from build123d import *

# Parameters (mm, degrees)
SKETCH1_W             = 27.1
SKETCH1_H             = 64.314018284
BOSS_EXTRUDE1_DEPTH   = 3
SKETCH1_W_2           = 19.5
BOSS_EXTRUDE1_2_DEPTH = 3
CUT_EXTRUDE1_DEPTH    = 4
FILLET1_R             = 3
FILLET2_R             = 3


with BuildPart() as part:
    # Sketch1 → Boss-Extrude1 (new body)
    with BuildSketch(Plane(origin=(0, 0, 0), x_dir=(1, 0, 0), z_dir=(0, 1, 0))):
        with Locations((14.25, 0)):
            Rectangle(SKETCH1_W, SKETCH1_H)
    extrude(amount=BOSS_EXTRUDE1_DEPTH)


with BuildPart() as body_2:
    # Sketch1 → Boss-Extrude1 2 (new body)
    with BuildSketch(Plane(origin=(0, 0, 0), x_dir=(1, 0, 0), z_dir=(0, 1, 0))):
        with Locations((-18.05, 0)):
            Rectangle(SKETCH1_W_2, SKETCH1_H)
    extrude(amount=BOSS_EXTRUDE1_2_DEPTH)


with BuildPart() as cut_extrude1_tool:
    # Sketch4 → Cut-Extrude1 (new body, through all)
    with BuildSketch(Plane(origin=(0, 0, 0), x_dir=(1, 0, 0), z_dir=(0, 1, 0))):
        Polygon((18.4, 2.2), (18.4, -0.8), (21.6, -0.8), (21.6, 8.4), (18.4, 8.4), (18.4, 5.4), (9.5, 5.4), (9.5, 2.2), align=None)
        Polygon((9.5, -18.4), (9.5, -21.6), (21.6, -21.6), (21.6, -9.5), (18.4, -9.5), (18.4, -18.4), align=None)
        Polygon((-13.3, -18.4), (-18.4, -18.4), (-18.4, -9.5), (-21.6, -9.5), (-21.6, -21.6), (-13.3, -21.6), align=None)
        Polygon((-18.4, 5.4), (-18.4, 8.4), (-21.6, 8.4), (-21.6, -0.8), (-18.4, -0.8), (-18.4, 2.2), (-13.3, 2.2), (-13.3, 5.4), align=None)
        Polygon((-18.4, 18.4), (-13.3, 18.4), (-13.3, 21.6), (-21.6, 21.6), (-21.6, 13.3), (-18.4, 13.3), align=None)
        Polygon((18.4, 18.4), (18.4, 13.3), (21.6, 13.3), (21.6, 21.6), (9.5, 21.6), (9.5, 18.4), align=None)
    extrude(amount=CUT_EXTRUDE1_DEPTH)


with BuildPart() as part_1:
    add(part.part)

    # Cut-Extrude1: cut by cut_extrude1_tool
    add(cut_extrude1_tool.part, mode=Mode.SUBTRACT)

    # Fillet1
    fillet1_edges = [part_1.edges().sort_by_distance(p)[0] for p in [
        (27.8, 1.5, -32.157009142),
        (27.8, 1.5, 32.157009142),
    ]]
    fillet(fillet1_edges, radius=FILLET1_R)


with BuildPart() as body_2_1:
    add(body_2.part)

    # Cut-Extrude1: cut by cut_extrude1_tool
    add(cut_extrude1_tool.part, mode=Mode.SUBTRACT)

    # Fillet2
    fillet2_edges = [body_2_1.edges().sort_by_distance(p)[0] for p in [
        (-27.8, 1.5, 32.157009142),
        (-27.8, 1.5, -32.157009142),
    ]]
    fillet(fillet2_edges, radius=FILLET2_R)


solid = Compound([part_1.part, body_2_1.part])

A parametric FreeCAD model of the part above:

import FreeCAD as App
import Part
import Sketcher
Q = App.Units.Quantity


def edges_at(feature, points):
    """Names of the edges that pass closest to the given points."""
    edges = feature.Shape.Edges
    near = lambda p: min(range(len(edges)), key=lambda i: edges[i].distToShape(Part.Vertex(*p))[0])
    return sorted({f"Edge{near(p) + 1}" for p in points})

doc = App.newDocument("Part")
params = doc.addObject("Spreadsheet::Sheet", "Params")
for row, (alias, value) in enumerate([
    ("sketch1_width", "27.1 mm"),
    ("pad1_length", "3 mm"),
    ("sketch2_width", "19.5 mm"),
    ("pad2_length", "3 mm"),
    ("sketch3_height", "3 mm"),
    ("sketch3_width", "3.2 mm"),
    ("sketch3_width2", "8.9 mm"),
    ("sketch3_width3", "5.1 mm"),
    ("pad3_length", "4 mm"),
    ("fillet_radius", "3 mm"),
    ("fillet2_radius", "3 mm"),
], start=1):
    params.set(f"A{row}", alias)
    params.set(f"B{row}", "=" + value)
    params.setAlias(f"B{row}", alias)

body = doc.addObject("PartDesign::Body", "Body")

# Sketch on XZ plane
sketch1 = doc.addObject("Sketcher::SketchObject", "Sketch")
body.addObject(sketch1)
sketch1.AttachmentSupport = (doc.XZ_Plane, [""])
sketch1.MapMode = "FlatFace"
sketch1.addGeometry(Part.LineSegment(App.Vector(1, -32, 0), App.Vector(1, 32, 0)), False)
sketch1.addGeometry(Part.LineSegment(App.Vector(1, 32, 0), App.Vector(28, 32, 0)), False)
sketch1.addGeometry(Part.LineSegment(App.Vector(28, 32, 0), App.Vector(28, -32, 0)), False)
sketch1.addGeometry(Part.LineSegment(App.Vector(28, -32, 0), App.Vector(1, -32, 0)), False)
sketch1.addConstraint(Sketcher.Constraint("Coincident", 0, 2, 1, 1))
sketch1.addConstraint(Sketcher.Constraint("Coincident", 1, 2, 2, 1))
sketch1.addConstraint(Sketcher.Constraint("Coincident", 2, 2, 3, 1))
sketch1.addConstraint(Sketcher.Constraint("Coincident", 3, 2, 0, 1))
sketch1.addConstraint(Sketcher.Constraint("Vertical", 0))
sketch1.addConstraint(Sketcher.Constraint("Horizontal", 1))
sketch1.addConstraint(Sketcher.Constraint("Vertical", 2))
sketch1.addConstraint(Sketcher.Constraint("Horizontal", 3))
sketch1.addConstraint(Sketcher.Constraint("DistanceX", 1, 1, 1, 2, Q("27.1 mm")))
sketch1.addConstraint(Sketcher.Constraint("DistanceX", -1, 1, 0, 2, Q("0.7 mm")))
sketch1.addConstraint(Sketcher.Constraint("DistanceY", 0, 1, 0, 2, Q("64.314018 mm")))
sketch1.addConstraint(Sketcher.Constraint("DistanceY", -1, 1, 0, 2, Q("32.157009 mm")))
sketch1.setExpression("Constraints[8]", "Params.sketch1_width")
pad1 = doc.addObject("PartDesign::Pad", "Pad")
body.addObject(pad1)
pad1.Profile = sketch1
pad1.setExpression("Length", "Params.pad1_length")
pad1.Reversed = True
body2 = doc.addObject("PartDesign::Body", "Body001")

# Sketch on XZ plane
sketch2 = doc.addObject("Sketcher::SketchObject", "Sketch001")
body2.addObject(sketch2)
sketch2.AttachmentSupport = (doc.getObject("XZ_Plane001"), [""])
sketch2.MapMode = "FlatFace"
sketch2.addGeometry(Part.LineSegment(App.Vector(-28, -32, 0), App.Vector(-28, 32, 0)), False)
sketch2.addGeometry(Part.LineSegment(App.Vector(-28, 32, 0), App.Vector(-8, 32, 0)), False)
sketch2.addGeometry(Part.LineSegment(App.Vector(-8, 32, 0), App.Vector(-8, -32, 0)), False)
sketch2.addGeometry(Part.LineSegment(App.Vector(-8, -32, 0), App.Vector(-28, -32, 0)), False)
sketch2.addConstraint(Sketcher.Constraint("Coincident", 0, 2, 1, 1))
sketch2.addConstraint(Sketcher.Constraint("Coincident", 1, 2, 2, 1))
sketch2.addConstraint(Sketcher.Constraint("Coincident", 2, 2, 3, 1))
sketch2.addConstraint(Sketcher.Constraint("Coincident", 3, 2, 0, 1))
sketch2.addConstraint(Sketcher.Constraint("Vertical", 0))
sketch2.addConstraint(Sketcher.Constraint("Horizontal", 1))
sketch2.addConstraint(Sketcher.Constraint("Vertical", 2))
sketch2.addConstraint(Sketcher.Constraint("Horizontal", 3))
sketch2.addConstraint(Sketcher.Constraint("DistanceX", 1, 1, 1, 2, Q("19.5 mm")))
sketch2.addConstraint(Sketcher.Constraint("DistanceX", 0, 2, -1, 1, Q("27.8 mm")))
sketch2.addConstraint(Sketcher.Constraint("DistanceY", 0, 1, 0, 2, Q("64.314018 mm")))
sketch2.addConstraint(Sketcher.Constraint("DistanceY", -1, 1, 0, 2, Q("32.157009 mm")))
sketch2.setExpression("Constraints[8]", "Params.sketch2_width")
pad2 = doc.addObject("PartDesign::Pad", "Pad001")
body2.addObject(pad2)
pad2.Profile = sketch2
pad2.setExpression("Length", "Params.pad2_length")
pad2.Reversed = True
body3 = doc.addObject("PartDesign::Body", "Body002")
body3.AllowCompound = True

# Sketch on XZ plane
sketch3 = doc.addObject("Sketcher::SketchObject", "Sketch002")
body3.addObject(sketch3)
sketch3.AttachmentSupport = (doc.getObject("XZ_Plane002"), [""])
sketch3.MapMode = "FlatFace"
sketch3.addGeometry(Part.LineSegment(App.Vector(18.4, -2.2, 0), App.Vector(18.4, 0.8, 0)), False)
sketch3.addGeometry(Part.LineSegment(App.Vector(18.4, 0.8, 0), App.Vector(21.6, 0.8, 0)), False)
sketch3.addGeometry(Part.LineSegment(App.Vector(21.6, 0.8, 0), App.Vector(21.6, -8.4, 0)), False)
sketch3.addGeometry(Part.LineSegment(App.Vector(21.6, -8.4, 0), App.Vector(18.4, -8.4, 0)), False)
sketch3.addGeometry(Part.LineSegment(App.Vector(18.4, -8.4, 0), App.Vector(18.4, -5.4, 0)), False)
sketch3.addGeometry(Part.LineSegment(App.Vector(18.4, -5.4, 0), App.Vector(9.5, -5.4, 0)), False)
sketch3.addGeometry(Part.LineSegment(App.Vector(9.5, -5.4, 0), App.Vector(9.5, -2.2, 0)), False)
sketch3.addGeometry(Part.LineSegment(App.Vector(9.5, -2.2, 0), App.Vector(18.4, -2.2, 0)), False)
sketch3.addGeometry(Part.LineSegment(App.Vector(9.5, 18.4, 0), App.Vector(9.5, 21.6, 0)), False)
sketch3.addGeometry(Part.LineSegment(App.Vector(9.5, 21.6, 0), App.Vector(21.6, 21.6, 0)), False)
sketch3.addGeometry(Part.LineSegment(App.Vector(21.6, 21.6, 0), App.Vector(21.6, 9.5, 0)), False)
sketch3.addGeometry(Part.LineSegment(App.Vector(21.6, 9.5, 0), App.Vector(18.4, 9.5, 0)), False)
sketch3.addGeometry(Part.LineSegment(App.Vector(18.4, 9.5, 0), App.Vector(18.4, 18.4, 0)), False)
sketch3.addGeometry(Part.LineSegment(App.Vector(18.4, 18.4, 0), App.Vector(9.5, 18.4, 0)), False)
sketch3.addGeometry(Part.LineSegment(App.Vector(-13.3, 18.4, 0), App.Vector(-18.4, 18.4, 0)), False)
sketch3.addGeometry(Part.LineSegment(App.Vector(-18.4, 18.4, 0), App.Vector(-18.4, 9.5, 0)), False)
sketch3.addGeometry(Part.LineSegment(App.Vector(-18.4, 9.5, 0), App.Vector(-21.6, 9.5, 0)), False)
sketch3.addGeometry(Part.LineSegment(App.Vector(-21.6, 9.5, 0), App.Vector(-21.6, 21.6, 0)), False)
sketch3.addGeometry(Part.LineSegment(App.Vector(-21.6, 21.6, 0), App.Vector(-13.3, 21.6, 0)), False)
sketch3.addGeometry(Part.LineSegment(App.Vector(-13.3, 21.6, 0), App.Vector(-13.3, 18.4, 0)), False)
sketch3.addGeometry(Part.LineSegment(App.Vector(-18.4, -5.4, 0), App.Vector(-18.4, -8.4, 0)), False)
sketch3.addGeometry(Part.LineSegment(App.Vector(-18.4, -8.4, 0), App.Vector(-21.6, -8.4, 0)), False)
sketch3.addGeometry(Part.LineSegment(App.Vector(-21.6, -8.4, 0), App.Vector(-21.6, 0.8, 0)), False)
sketch3.addGeometry(Part.LineSegment(App.Vector(-21.6, 0.8, 0), App.Vector(-18.4, 0.8, 0)), False)
sketch3.addGeometry(Part.LineSegment(App.Vector(-18.4, 0.8, 0), App.Vector(-18.4, -2.2, 0)), False)
sketch3.addGeometry(Part.LineSegment(App.Vector(-18.4, -2.2, 0), App.Vector(-13.3, -2.2, 0)), False)
sketch3.addGeometry(Part.LineSegment(App.Vector(-13.3, -2.2, 0), App.Vector(-13.3, -5.4, 0)), False)
sketch3.addGeometry(Part.LineSegment(App.Vector(-13.3, -5.4, 0), App.Vector(-18.4, -5.4, 0)), False)
sketch3.addGeometry(Part.LineSegment(App.Vector(-18.4, -18.4, 0), App.Vector(-13.3, -18.4, 0)), False)
sketch3.addGeometry(Part.LineSegment(App.Vector(-13.3, -18.4, 0), App.Vector(-13.3, -21.6, 0)), False)
sketch3.addGeometry(Part.LineSegment(App.Vector(-13.3, -21.6, 0), App.Vector(-21.6, -21.6, 0)), False)
sketch3.addGeometry(Part.LineSegment(App.Vector(-21.6, -21.6, 0), App.Vector(-21.6, -13.3, 0)), False)
sketch3.addGeometry(Part.LineSegment(App.Vector(-21.6, -13.3, 0), App.Vector(-18.4, -13.3, 0)), False)
sketch3.addGeometry(Part.LineSegment(App.Vector(-18.4, -13.3, 0), App.Vector(-18.4, -18.4, 0)), False)
sketch3.addGeometry(Part.LineSegment(App.Vector(18.4, -18.4, 0), App.Vector(18.4, -13.3, 0)), False)
sketch3.addGeometry(Part.LineSegment(App.Vector(18.4, -13.3, 0), App.Vector(21.6, -13.3, 0)), False)
sketch3.addGeometry(Part.LineSegment(App.Vector(21.6, -13.3, 0), App.Vector(21.6, -21.6, 0)), False)
sketch3.addGeometry(Part.LineSegment(App.Vector(21.6, -21.6, 0), App.Vector(9.5, -21.6, 0)), False)
sketch3.addGeometry(Part.LineSegment(App.Vector(9.5, -21.6, 0), App.Vector(9.5, -18.4, 0)), False)
sketch3.addGeometry(Part.LineSegment(App.Vector(9.5, -18.4, 0), App.Vector(18.4, -18.4, 0)), False)
sketch3.addConstraint(Sketcher.Constraint("Coincident", 0, 2, 1, 1))
sketch3.addConstraint(Sketcher.Constraint("Coincident", 1, 2, 2, 1))
sketch3.addConstraint(Sketcher.Constraint("Coincident", 2, 2, 3, 1))
sketch3.addConstraint(Sketcher.Constraint("Coincident", 3, 2, 4, 1))
sketch3.addConstraint(Sketcher.Constraint("Coincident", 4, 2, 5, 1))
sketch3.addConstraint(Sketcher.Constraint("Coincident", 5, 2, 6, 1))
sketch3.addConstraint(Sketcher.Constraint("Coincident", 6, 2, 7, 1))
sketch3.addConstraint(Sketcher.Constraint("Coincident", 7, 2, 0, 1))
sketch3.addConstraint(Sketcher.Constraint("Coincident", 8, 2, 9, 1))
sketch3.addConstraint(Sketcher.Constraint("Coincident", 9, 2, 10, 1))
sketch3.addConstraint(Sketcher.Constraint("Coincident", 10, 2, 11, 1))
sketch3.addConstraint(Sketcher.Constraint("Coincident", 11, 2, 12, 1))
sketch3.addConstraint(Sketcher.Constraint("Coincident", 12, 2, 13, 1))
sketch3.addConstraint(Sketcher.Constraint("Coincident", 13, 2, 8, 1))
sketch3.addConstraint(Sketcher.Constraint("Coincident", 14, 2, 15, 1))
sketch3.addConstraint(Sketcher.Constraint("Coincident", 15, 2, 16, 1))
sketch3.addConstraint(Sketcher.Constraint("Coincident", 16, 2, 17, 1))
sketch3.addConstraint(Sketcher.Constraint("Coincident", 17, 2, 18, 1))
sketch3.addConstraint(Sketcher.Constraint("Coincident", 18, 2, 19, 1))
sketch3.addConstraint(Sketcher.Constraint("Coincident", 19, 2, 14, 1))
sketch3.addConstraint(Sketcher.Constraint("Coincident", 20, 2, 21, 1))
sketch3.addConstraint(Sketcher.Constraint("Coincident", 21, 2, 22, 1))
sketch3.addConstraint(Sketcher.Constraint("Coincident", 22, 2, 23, 1))
sketch3.addConstraint(Sketcher.Constraint("Coincident", 23, 2, 24, 1))
sketch3.addConstraint(Sketcher.Constraint("Coincident", 24, 2, 25, 1))
sketch3.addConstraint(Sketcher.Constraint("Coincident", 25, 2, 26, 1))
sketch3.addConstraint(Sketcher.Constraint("Coincident", 26, 2, 27, 1))
sketch3.addConstraint(Sketcher.Constraint("Coincident", 27, 2, 20, 1))
sketch3.addConstraint(Sketcher.Constraint("Coincident", 28, 2, 29, 1))
sketch3.addConstraint(Sketcher.Constraint("Coincident", 29, 2, 30, 1))
sketch3.addConstraint(Sketcher.Constraint("Coincident", 30, 2, 31, 1))
sketch3.addConstraint(Sketcher.Constraint("Coincident", 31, 2, 32, 1))
sketch3.addConstraint(Sketcher.Constraint("Coincident", 32, 2, 33, 1))
sketch3.addConstraint(Sketcher.Constraint("Coincident", 33, 2, 28, 1))
sketch3.addConstraint(Sketcher.Constraint("Coincident", 34, 2, 35, 1))
sketch3.addConstraint(Sketcher.Constraint("Coincident", 35, 2, 36, 1))
sketch3.addConstraint(Sketcher.Constraint("Coincident", 36, 2, 37, 1))
sketch3.addConstraint(Sketcher.Constraint("Coincident", 37, 2, 38, 1))
sketch3.addConstraint(Sketcher.Constraint("Coincident", 38, 2, 39, 1))
sketch3.addConstraint(Sketcher.Constraint("Coincident", 39, 2, 34, 1))
sketch3.addConstraint(Sketcher.Constraint("Vertical", 0))
sketch3.addConstraint(Sketcher.Constraint("Horizontal", 1))
sketch3.addConstraint(Sketcher.Constraint("Vertical", 2))
sketch3.addConstraint(Sketcher.Constraint("Horizontal", 3))
sketch3.addConstraint(Sketcher.Constraint("Vertical", 4))
sketch3.addConstraint(Sketcher.Constraint("Horizontal", 5))
sketch3.addConstraint(Sketcher.Constraint("Vertical", 6))
sketch3.addConstraint(Sketcher.Constraint("Horizontal", 7))
sketch3.addConstraint(Sketcher.Constraint("Vertical", 8))
sketch3.addConstraint(Sketcher.Constraint("Horizontal", 9))
sketch3.addConstraint(Sketcher.Constraint("Vertical", 10))
sketch3.addConstraint(Sketcher.Constraint("Horizontal", 11))
sketch3.addConstraint(Sketcher.Constraint("Vertical", 12))
sketch3.addConstraint(Sketcher.Constraint("Horizontal", 13))
sketch3.addConstraint(Sketcher.Constraint("Horizontal", 14))
sketch3.addConstraint(Sketcher.Constraint("Vertical", 15))
sketch3.addConstraint(Sketcher.Constraint("Horizontal", 16))
sketch3.addConstraint(Sketcher.Constraint("Vertical", 17))
sketch3.addConstraint(Sketcher.Constraint("Horizontal", 18))
sketch3.addConstraint(Sketcher.Constraint("Vertical", 19))
sketch3.addConstraint(Sketcher.Constraint("Vertical", 20))
sketch3.addConstraint(Sketcher.Constraint("Horizontal", 21))
sketch3.addConstraint(Sketcher.Constraint("Vertical", 22))
sketch3.addConstraint(Sketcher.Constraint("Horizontal", 23))
sketch3.addConstraint(Sketcher.Constraint("Vertical", 24))
sketch3.addConstraint(Sketcher.Constraint("Horizontal", 25))
sketch3.addConstraint(Sketcher.Constraint("Vertical", 26))
sketch3.addConstraint(Sketcher.Constraint("Horizontal", 27))
sketch3.addConstraint(Sketcher.Constraint("Horizontal", 28))
sketch3.addConstraint(Sketcher.Constraint("Vertical", 29))
sketch3.addConstraint(Sketcher.Constraint("Horizontal", 30))
sketch3.addConstraint(Sketcher.Constraint("Vertical", 31))
sketch3.addConstraint(Sketcher.Constraint("Horizontal", 32))
sketch3.addConstraint(Sketcher.Constraint("Vertical", 33))
sketch3.addConstraint(Sketcher.Constraint("Vertical", 34))
sketch3.addConstraint(Sketcher.Constraint("Horizontal", 35))
sketch3.addConstraint(Sketcher.Constraint("Vertical", 36))
sketch3.addConstraint(Sketcher.Constraint("Horizontal", 37))
sketch3.addConstraint(Sketcher.Constraint("Vertical", 38))
sketch3.addConstraint(Sketcher.Constraint("Horizontal", 39))
sketch3.addConstraint(Sketcher.Constraint("Symmetric", 9, 2, 30, 2, -1, 1))
sketch3.addConstraint(Sketcher.Constraint("Symmetric", 12, 2, 33, 2, -1, 1))
sketch3.addConstraint(Sketcher.Constraint("Symmetric", 17, 2, 36, 2, -1, 1))
sketch3.addConstraint(Sketcher.Constraint("Symmetric", 14, 2, 39, 2, -1, 1))
sketch3.addConstraint(Sketcher.Constraint("Symmetric", 12, 2, 14, 2, -2))
sketch3.addConstraint(Sketcher.Constraint("Symmetric", 10, 2, 16, 2, -2))
sketch3.addConstraint(Sketcher.Constraint("Symmetric", 3, 2, 20, 2, -2))
sketch3.addConstraint(Sketcher.Constraint("Symmetric", 1, 2, 22, 2, -2))
sketch3.addConstraint(Sketcher.Constraint("Symmetric", 7, 2, 24, 2, -2))
sketch3.addConstraint(Sketcher.Constraint("Symmetric", 18, 2, 29, 2, -1))
sketch3.addConstraint(Sketcher.Constraint("Horizontal", 5, 2, 26, 2))
sketch3.addConstraint(Sketcher.Constraint("Horizontal", 32, 2, 34, 2))
sketch3.addConstraint(Sketcher.Constraint("Vertical", 0, 2, 3, 2))
sketch3.addConstraint(Sketcher.Constraint("Vertical", 6, 2, 8, 2))
sketch3.addConstraint(Sketcher.Constraint("Vertical", 2, 2, 9, 2))
sketch3.addConstraint(Sketcher.Constraint("Vertical", 7, 2, 11, 2))
sketch3.addConstraint(Sketcher.Constraint("Vertical", 19, 2, 25, 2))
sketch3.addConstraint(Sketcher.Constraint("Vertical", 13, 2, 37, 2))
sketch3.addConstraint(Sketcher.Constraint("Equal", 0, 4))
sketch3.addConstraint(Sketcher.Constraint("Equal", 35, 6))
sketch3.addConstraint(Sketcher.Constraint("Equal", 6, 8))
sketch3.addConstraint(Sketcher.Constraint("Equal", 37, 10))
sketch3.addConstraint(Sketcher.Constraint("Equal", 30, 31))
sketch3.addConstraint(Sketcher.Constraint("DistanceY", 0, 1, 0, 2, Q("3 mm")))
sketch3.addConstraint(Sketcher.Constraint("DistanceX", 1, 1, 1, 2, Q("3.2 mm")))
sketch3.addConstraint(Sketcher.Constraint("DistanceX", 5, 2, 5, 1, Q("8.9 mm")))
sketch3.addConstraint(Sketcher.Constraint("DistanceX", 14, 2, 14, 1, Q("5.1 mm")))
sketch3.addConstraint(Sketcher.Constraint("DistanceY", 5, 2, 8, 2, Q("27 mm")))
sketch3.addConstraint(Sketcher.Constraint("DistanceY", 28, 2, 20, 2, Q("10 mm")))
sketch3.addConstraint(Sketcher.Constraint("DistanceX", -1, 1, 0, 2, Q("18.4 mm")))
sketch3.setExpression("Constraints[103]", "Params.sketch3_height")
sketch3.setExpression("Constraints[104]", "Params.sketch3_width")
sketch3.setExpression("Constraints[105]", "Params.sketch3_width2")
sketch3.setExpression("Constraints[106]", "Params.sketch3_width3")
pad3 = doc.addObject("PartDesign::Pad", "Pad002")
body3.addObject(pad3)
pad3.Profile = sketch3
pad3.setExpression("Length", "Params.pad3_length")
pad3.Reversed = True
doc.recompute()

body4 = doc.addObject("PartDesign::Body", "Body003")
body4.BaseFeature = body3
boolean = doc.addObject("PartDesign::Boolean", "Boolean")
body.addObject(boolean)
boolean.Type = "Cut"
boolean.addObjects([body4])
doc.recompute()

fillet = doc.addObject("PartDesign::Fillet", "Fillet")
body.addObject(fillet)
fillet.Base = (boolean, edges_at(boolean, [(27.8, 1.5, -32.157), (27.8, 1.5, 32.157)]))
fillet.setExpression("Radius", "Params.fillet_radius")
doc.recompute()

boolean2 = doc.addObject("PartDesign::Boolean", "Boolean001")
body2.addObject(boolean2)
boolean2.Type = "Cut"
boolean2.addObjects([body3])
doc.recompute()

fillet2 = doc.addObject("PartDesign::Fillet", "Fillet001")
body2.addObject(fillet2)
fillet2.Base = (boolean2, edges_at(boolean2, [(-27.8, 1.5, 32.157), (-27.8, 1.5, -32.157)]))
fillet2.setExpression("Radius", "Params.fillet2_radius")

doc.recompute()
